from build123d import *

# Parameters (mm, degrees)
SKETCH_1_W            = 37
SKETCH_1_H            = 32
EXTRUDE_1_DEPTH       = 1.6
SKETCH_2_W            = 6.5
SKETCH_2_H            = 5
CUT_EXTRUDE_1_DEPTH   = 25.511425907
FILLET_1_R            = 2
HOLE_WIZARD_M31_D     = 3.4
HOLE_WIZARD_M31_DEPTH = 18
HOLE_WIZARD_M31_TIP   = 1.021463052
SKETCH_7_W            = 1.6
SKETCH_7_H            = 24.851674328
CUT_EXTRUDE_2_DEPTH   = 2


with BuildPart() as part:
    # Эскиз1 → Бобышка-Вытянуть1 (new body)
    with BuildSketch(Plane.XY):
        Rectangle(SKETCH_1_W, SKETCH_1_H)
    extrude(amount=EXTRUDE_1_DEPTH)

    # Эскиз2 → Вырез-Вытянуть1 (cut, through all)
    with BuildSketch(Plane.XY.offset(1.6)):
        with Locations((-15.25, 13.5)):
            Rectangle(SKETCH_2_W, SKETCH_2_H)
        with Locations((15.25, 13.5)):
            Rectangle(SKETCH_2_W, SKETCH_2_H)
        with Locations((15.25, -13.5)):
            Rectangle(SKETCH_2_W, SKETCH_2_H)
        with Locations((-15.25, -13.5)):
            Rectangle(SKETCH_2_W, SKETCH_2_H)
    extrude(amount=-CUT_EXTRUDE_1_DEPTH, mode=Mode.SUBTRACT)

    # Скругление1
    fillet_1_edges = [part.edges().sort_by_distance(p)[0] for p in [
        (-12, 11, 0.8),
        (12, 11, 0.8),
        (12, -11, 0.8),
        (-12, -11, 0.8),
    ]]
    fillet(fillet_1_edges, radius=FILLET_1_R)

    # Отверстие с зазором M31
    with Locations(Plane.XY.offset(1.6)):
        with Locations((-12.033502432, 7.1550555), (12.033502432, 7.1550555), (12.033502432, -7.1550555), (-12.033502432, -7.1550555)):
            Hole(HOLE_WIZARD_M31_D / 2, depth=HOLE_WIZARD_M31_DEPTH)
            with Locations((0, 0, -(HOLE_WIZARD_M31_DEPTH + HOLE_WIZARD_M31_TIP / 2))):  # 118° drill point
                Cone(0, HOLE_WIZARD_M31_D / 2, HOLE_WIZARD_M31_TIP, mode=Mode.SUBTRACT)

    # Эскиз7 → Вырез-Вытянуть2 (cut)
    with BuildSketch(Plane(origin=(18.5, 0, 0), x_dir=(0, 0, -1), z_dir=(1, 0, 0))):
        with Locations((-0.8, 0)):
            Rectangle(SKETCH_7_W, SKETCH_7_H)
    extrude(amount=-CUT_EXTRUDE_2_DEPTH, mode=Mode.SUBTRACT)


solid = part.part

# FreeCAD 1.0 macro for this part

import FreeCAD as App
import Part
import Sketcher


def edges_at(feature, points):
    """Names of the edges that pass closest to the given points."""
    edges = feature.Shape.Edges
    near = lambda p: min(range(len(edges)), key=lambda i: edges[i].distToShape(Part.Vertex(*p))[0])
    return sorted({f"Edge{near(p) + 1}" for p in points})


def add_polygon(sketch, points):
    """Adds a closed chain of lines whose ends are joined by coincident constraints."""
    first, n = sketch.GeometryCount, len(points)
    for a, b in zip(points, points[1:] + points[:1]):
        sketch.addGeometry(Part.LineSegment(App.Vector(*a, 0), App.Vector(*b, 0)), False)
    for i in range(n):
        sketch.addConstraint(Sketcher.Constraint("Coincident", first + i, 2, first + (i + 1) % n, 1))

doc = App.newDocument("Part")
body = doc.addObject("PartDesign::Body", "Body")

# Sketch on XY plane
sketch1 = body.newObject("Sketcher::SketchObject", "Sketch")
sketch1.AttachmentSupport = (doc.getObject("XY_Plane"), [""])
sketch1.MapMode = "FlatFace"
add_polygon(sketch1, [(-18, 16), (-18, -16), (18, -16), (18, 16)])  # lines 0-3
sketch1.addConstraint(Sketcher.Constraint("Vertical", 0))
sketch1.addConstraint(Sketcher.Constraint("Horizontal", 1))
sketch1.addConstraint(Sketcher.Constraint("Vertical", 2))
sketch1.addConstraint(Sketcher.Constraint("Horizontal", 3))
sketch1.addConstraint(Sketcher.Constraint("Symmetric", 0, 2, 2, 2, -1, 1))
sketch1.addConstraint(Sketcher.Constraint("DistanceX", 1, 1, 1, 2, 37.0))
sketch1.addConstraint(Sketcher.Constraint("DistanceY", 0, 2, 0, 1, 32.0))
pad1 = body.newObject("PartDesign::Pad", "Pad")
pad1.Profile = sketch1
pad1.Length = 1.6

# Sketch on XY plane
sketch2 = body.newObject("Sketcher::SketchObject", "Sketch001")
sketch2.AttachmentSupport = (doc.getObject("XY_Plane"), [""])
sketch2.MapMode = "FlatFace"
sketch2.AttachmentOffset = App.Placement(App.Vector(0, 0, 1.6), App.Rotation())
add_polygon(sketch2, [(-18, 16), (-18, 11), (-12, 11), (-12, 16)])  # lines 0-3
add_polygon(sketch2, [(12, 16), (12, 11), (18, 11), (18, 16)])  # lines 4-7
add_polygon(sketch2, [(12, -11), (12, -16), (18, -16), (18, -11)])  # lines 8-11
add_polygon(sketch2, [(-18, -11), (-18, -16), (-12, -16), (-12, -11)])  # lines 12-15
sketch2.addConstraint(Sketcher.Constraint("Vertical", 0))
sketch2.addConstraint(Sketcher.Constraint("Horizontal", 1))
sketch2.addConstraint(Sketcher.Constraint("Vertical", 2))
sketch2.addConstraint(Sketcher.Constraint("Horizontal", 3))
sketch2.addConstraint(Sketcher.Constraint("Vertical", 4))
sketch2.addConstraint(Sketcher.Constraint("Horizontal", 5))
sketch2.addConstraint(Sketcher.Constraint("Vertical", 6))
sketch2.addConstraint(Sketcher.Constraint("Horizontal", 7))
sketch2.addConstraint(Sketcher.Constraint("Vertical", 8))
sketch2.addConstraint(Sketcher.Constraint("Horizontal", 9))
sketch2.addConstraint(Sketcher.Constraint("Vertical", 10))
sketch2.addConstraint(Sketcher.Constraint("Horizontal", 11))
sketch2.addConstraint(Sketcher.Constraint("Vertical", 12))
sketch2.addConstraint(Sketcher.Constraint("Horizontal", 13))
sketch2.addConstraint(Sketcher.Constraint("Vertical", 14))
sketch2.addConstraint(Sketcher.Constraint("Horizontal", 15))
sketch2.addConstraint(Sketcher.Constraint("Symmetric", 2, 2, 8, 2, -1, 1))
sketch2.addConstraint(Sketcher.Constraint("Symmetric", 0, 2, 10, 2, -1, 1))
sketch2.addConstraint(Sketcher.Constraint("Symmetric", 6, 2, 12, 2, -1, 1))
sketch2.addConstraint(Sketcher.Constraint("Symmetric", 4, 2, 14, 2, -1, 1))
sketch2.addConstraint(Sketcher.Constraint("Symmetric", 1, 2, 4, 2, -2))
sketch2.addConstraint(Sketcher.Constraint("Symmetric", 3, 2, 6, 2, -2))
sketch2.addConstraint(Sketcher.Constraint("DistanceY", 0, 2, 0, 1, 5.0))
sketch2.addConstraint(Sketcher.Constraint("DistanceX", 1, 1, 1, 2, 6.5))
sketch2.addConstraint(Sketcher.Constraint("DistanceY", -1, 1, 0, 2, 11.0))
sketch2.addConstraint(Sketcher.Constraint("DistanceX", 1, 2, -1, 1, 12.0))
pocket1 = body.newObject("PartDesign::Pocket", "Pocket")
pocket1.Profile = sketch2
pocket1.Type = "ThroughAll"
doc.recompute()

fillet = body.newObject("PartDesign::Fillet", "Fillet")
fillet.Base = (pocket1, edges_at(pocket1, [
    (-12, 11, 0.8),
    (12, 11, 0.8),
    (12, -11, 0.8),
    (-12, -11, 0.8),
]))
fillet.Radius = 2

# Sketch on XY plane
sketch3 = body.newObject("Sketcher::SketchObject", "Sketch002")
sketch3.AttachmentSupport = (doc.getObject("XY_Plane"), [""])
sketch3.MapMode = "FlatFace"
sketch3.AttachmentOffset = App.Placement(App.Vector(0, 0, 1.6), App.Rotation())
sketch3.addGeometry(Part.Circle(App.Vector(-12, 7.2, 0), App.Vector(0, 0, 1), 1.7), False)
sketch3.addGeometry(Part.Circle(App.Vector(12, 7.2, 0), App.Vector(0, 0, 1), 1.7), False)
sketch3.addGeometry(Part.Circle(App.Vector(12, -7.2, 0), App.Vector(0, 0, 1), 1.7), False)
sketch3.addGeometry(Part.Circle(App.Vector(-12, -7.2, 0), App.Vector(0, 0, 1), 1.7), False)
sketch3.addConstraint(Sketcher.Constraint("Equal", 0, 1))
sketch3.addConstraint(Sketcher.Constraint("Equal", 1, 2))
sketch3.addConstraint(Sketcher.Constraint("Equal", 2, 3))
sketch3.addConstraint(Sketcher.Constraint("Symmetric", 0, 3, 2, 3, -1, 1))
sketch3.addConstraint(Sketcher.Constraint("Symmetric", 1, 3, 3, 3, -1, 1))
sketch3.addConstraint(Sketcher.Constraint("Symmetric", 0, 3, 1, 3, -2))
sketch3.addConstraint(Sketcher.Constraint("Diameter", 0, 3.4))
sketch3.addConstraint(Sketcher.Constraint("DistanceY", 2, 3, 1, 3, 14.310111))
sketch3.addConstraint(Sketcher.Constraint("DistanceX", 0, 3, -1, 1, 12.033502))
doc.recompute()
hole = body.newObject("PartDesign::Hole", "Hole")
hole.Profile = sketch3
hole.ThreadType = "None"
hole.Diameter = 3.4
hole.DepthType = "Dimension"
hole.Depth = 18
hole.DrillPoint = "Angled"
hole.DrillPointAngle = 118

# Sketch on YZ plane
sketch4 = body.newObject("Sketcher::SketchObject", "Sketch003")
sketch4.AttachmentSupport = (doc.getObject("YZ_Plane"), [""])
sketch4.MapMode = "FlatFace"
sketch4.AttachmentOffset = App.Placement(App.Vector(0, 0, 18.5), App.Rotation())
add_polygon(sketch4, [(12.4, 1.6), (-12.4, 1.6), (-12.4, 0), (12.4, 0)])  # lines 0-3
sketch4.addConstraint(Sketcher.Constraint("Horizontal", 0))
sketch4.addConstraint(Sketcher.Constraint("Vertical", 1))
sketch4.addConstraint(Sketcher.Constraint("Horizontal", 2))
sketch4.addConstraint(Sketcher.Constraint("Vertical", 3))
sketch4.addConstraint(Sketcher.Constraint("Symmetric", 1, 2, 2, 2, -1, 1))
sketch4.addConstraint(Sketcher.Constraint("DistanceY", 1, 2, 1, 1, 1.6))
sketch4.addConstraint(Sketcher.Constraint("DistanceX", 0, 2, 0, 1, 24.851674))
pocket2 = body.newObject("PartDesign::Pocket", "Pocket001")
pocket2.Profile = sketch4
pocket2.Length = 2

doc.recompute()
